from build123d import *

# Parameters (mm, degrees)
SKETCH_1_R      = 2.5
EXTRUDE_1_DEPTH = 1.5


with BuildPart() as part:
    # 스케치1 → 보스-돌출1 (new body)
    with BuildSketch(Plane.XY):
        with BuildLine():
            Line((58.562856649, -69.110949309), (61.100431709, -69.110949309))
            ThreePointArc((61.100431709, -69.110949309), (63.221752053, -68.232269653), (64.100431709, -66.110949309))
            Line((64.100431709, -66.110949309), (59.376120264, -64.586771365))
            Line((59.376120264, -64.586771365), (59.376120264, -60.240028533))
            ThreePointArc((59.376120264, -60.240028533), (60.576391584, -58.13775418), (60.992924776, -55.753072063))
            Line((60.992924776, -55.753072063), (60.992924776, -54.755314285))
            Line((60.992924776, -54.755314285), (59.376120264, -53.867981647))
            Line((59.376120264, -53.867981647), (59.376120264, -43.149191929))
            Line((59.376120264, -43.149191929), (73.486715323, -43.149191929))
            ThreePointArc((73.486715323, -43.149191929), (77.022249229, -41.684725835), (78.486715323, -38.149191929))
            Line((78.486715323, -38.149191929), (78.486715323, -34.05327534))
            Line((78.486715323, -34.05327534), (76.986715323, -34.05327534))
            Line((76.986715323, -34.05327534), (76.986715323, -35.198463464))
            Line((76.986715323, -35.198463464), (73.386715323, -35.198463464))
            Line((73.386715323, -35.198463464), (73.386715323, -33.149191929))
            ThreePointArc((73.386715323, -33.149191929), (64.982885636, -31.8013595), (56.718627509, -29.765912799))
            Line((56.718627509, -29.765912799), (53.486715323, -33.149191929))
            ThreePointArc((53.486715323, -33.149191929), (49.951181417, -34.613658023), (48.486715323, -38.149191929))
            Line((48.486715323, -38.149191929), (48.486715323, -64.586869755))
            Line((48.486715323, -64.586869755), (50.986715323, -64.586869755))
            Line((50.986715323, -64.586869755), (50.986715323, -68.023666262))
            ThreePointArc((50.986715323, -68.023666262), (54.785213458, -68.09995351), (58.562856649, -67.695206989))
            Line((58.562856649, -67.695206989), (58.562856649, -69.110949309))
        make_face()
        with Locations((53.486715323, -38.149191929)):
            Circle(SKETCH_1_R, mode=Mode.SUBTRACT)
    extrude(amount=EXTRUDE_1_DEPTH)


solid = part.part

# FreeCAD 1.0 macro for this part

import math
import FreeCAD as App
import Part
import Sketcher

V = App.Vector
Q = App.Units.Quantity

doc = App.newDocument("Part")
body = doc.addObject("PartDesign::Body", "Body")

sketch1 = doc.addObject("Sketcher::SketchObject", "Sketch")
body.addObject(sketch1)
sketch1.AttachmentSupport = (doc.XY_Plane, [""])
sketch1.MapMode = "FlatFace"
sketch1.addGeometry([
    Part.LineSegment(V(58.6, -69.1, 0), V(61.1, -69.1, 0)),
    Part.ArcOfCircle(Part.Circle(V(61.1, -66.1, 0), V(0, 0, 1), 3), math.radians(-90), math.radians(0)),
    Part.LineSegment(V(64.1, -66.1, 0), V(59.4, -64.6, 0)),
    Part.LineSegment(V(59.4, -64.6, 0), V(59.4, -60.2, 0)),
    Part.ArcOfCircle(Part.Circle(V(54, -55.8, 0), V(0, 0, 1), 7), math.radians(-40), math.radians(0)),
    Part.LineSegment(V(61, -55.8, 0), V(61, -54.8, 0)),
    Part.LineSegment(V(61, -54.8, 0), V(59.4, -53.9, 0)),
    Part.LineSegment(V(59.4, -53.9, 0), V(59.4, -43.1, 0)),
    Part.LineSegment(V(59.4, -43.1, 0), V(73.5, -43.1, 0)),
    Part.ArcOfCircle(Part.Circle(V(73.5, -38.1, 0), V(0, 0, 1), 5), math.radians(-90), math.radians(0)),
    Part.LineSegment(V(78.5, -38.1, 0), V(78.5, -34.1, 0)),
    Part.LineSegment(V(78.5, -34.1, 0), V(77, -34.1, 0)),
    Part.LineSegment(V(77, -34.1, 0), V(77, -35.2, 0)),
    Part.LineSegment(V(77, -35.2, 0), V(73.4, -35.2, 0)),
    Part.LineSegment(V(73.4, -35.2, 0), V(73.4, -33.1, 0)),
    Part.ArcOfCircle(Part.Circle(V(85.5, 69.4, 0), V(0, 0, 1), 103.2), math.radians(-106.2), math.radians(-96.75)),
    Part.LineSegment(V(56.7, -29.8, 0), V(53.5, -33.1, 0)),
    Part.ArcOfCircle(Part.Circle(V(53.5, -38.1, 0), V(0, 0, 1), 5), math.radians(90), math.radians(180)),
    Part.LineSegment(V(48.5, -38.1, 0), V(48.5, -64.6, 0)),
    Part.LineSegment(V(48.5, -64.6, 0), V(51, -64.6, 0)),
    Part.LineSegment(V(51, -64.6, 0), V(51, -68, 0)),
    Part.ArcOfCircle(Part.Circle(V(53.5, -38.1, 0), V(0, 0, 1), 30), math.radians(-94.78), math.radians(-80.25)),
    Part.LineSegment(V(58.6, -67.7, 0), V(58.6, -69.1, 0)),
    Part.Circle(V(53.5, -38.1, 0), V(0, 0, 1), 2.5),
], False)
sketch1.addConstraint([
    Sketcher.Constraint("Tangent", 0, 2, 1, 1),
    Sketcher.Constraint("Coincident", 1, 2, 2, 1),
    Sketcher.Constraint("Coincident", 2, 2, 3, 1),
    Sketcher.Constraint("Coincident", 3, 2, 4, 1),
    Sketcher.Constraint("Tangent", 4, 2, 5, 1),
    Sketcher.Constraint("Coincident", 5, 2, 6, 1),
    Sketcher.Constraint("Coincident", 6, 2, 7, 1),
    Sketcher.Constraint("Coincident", 7, 2, 8, 1),
    Sketcher.Constraint("Tangent", 8, 2, 9, 1),
    Sketcher.Constraint("Tangent", 9, 2, 10, 1),
    Sketcher.Constraint("Coincident", 10, 2, 11, 1),
    Sketcher.Constraint("Coincident", 11, 2, 12, 1),
    Sketcher.Constraint("Coincident", 12, 2, 13, 1),
    Sketcher.Constraint("Coincident", 13, 2, 14, 1),
    Sketcher.Constraint("Coincident", 14, 2, 15, 2),
    Sketcher.Constraint("Coincident", 15, 1, 16, 1),
    Sketcher.Constraint("Coincident", 16, 2, 17, 1),
    Sketcher.Constraint("Tangent", 17, 2, 18, 1),
    Sketcher.Constraint("Coincident", 18, 2, 19, 1),
    Sketcher.Constraint("Coincident", 19, 2, 20, 1),
    Sketcher.Constraint("Coincident", 20, 2, 21, 1),
    Sketcher.Constraint("Coincident", 21, 2, 22, 1),
    Sketcher.Constraint("Coincident", 22, 2, 0, 1),
    Sketcher.Constraint("Horizontal", 0),
    Sketcher.Constraint("Vertical", 3),
    Sketcher.Constraint("Vertical", 5),
    Sketcher.Constraint("Vertical", 7),
    Sketcher.Constraint("Horizontal", 8),
    Sketcher.Constraint("Vertical", 10),
    Sketcher.Constraint("Horizontal", 11),
    Sketcher.Constraint("Vertical", 12),
    Sketcher.Constraint("Horizontal", 13),
    Sketcher.Constraint("Vertical", 14),
    Sketcher.Constraint("Vertical", 18),
    Sketcher.Constraint("Horizontal", 19),
    Sketcher.Constraint("Vertical", 20),
    Sketcher.Constraint("Vertical", 22),
    Sketcher.Constraint("Coincident", 21, 3, 17, 3),
    Sketcher.Constraint("Coincident", 23, 3, 17, 3),
    Sketcher.Constraint("Equal", 9, 17),
    Sketcher.Constraint("Horizontal", 9, 3, 17, 3),
    Sketcher.Constraint("Horizontal", 14, 2, 16, 2),
    Sketcher.Constraint("Vertical", 3, 2, 6, 2),
    Sketcher.Constraint("Vertical", 23, 3, 16, 2),
    Sketcher.Constraint("Diameter", 23, Q("5 mm")),
    Sketcher.Constraint("Radius", 1, Q("3 mm")),
    Sketcher.Constraint("Radius", 9, Q("5 mm")),
    Sketcher.Constraint("DistanceX", 11, 2, 11, 1, Q("1.5 mm")),
    Sketcher.Constraint("DistanceX", 13, 2, 13, 1, Q("3.6 mm")),
    Sketcher.Constraint("DistanceX", 19, 1, 19, 2, Q("2.5 mm")),
    Sketcher.Constraint("DistanceX", 17, 3, 9, 3, Q("20 mm")),
    Sketcher.Constraint("DistanceY", 0, 2, 1, 2, Q("3 mm")),
    Sketcher.Constraint("Radius", 4, Q("7.034504 mm")),
    Sketcher.Constraint("Radius", 15, Q("103.245795 mm")),
    Sketcher.Constraint("Radius", 21, Q("29.978896 mm")),
    Sketcher.Constraint("DistanceY", 7, 1, 7, 2, Q("10.71879 mm")),
    Sketcher.Constraint("DistanceY", 12, 2, 12, 1, Q("1.145188 mm")),
    Sketcher.Constraint("DistanceY", 14, 1, 14, 2, Q("2.049272 mm")),
    Sketcher.Constraint("DistanceX", 4, 3, 2, 2, Q("5.417699 mm")),
    Sketcher.Constraint("DistanceY", 2, 2, 4, 3, Q("8.833699 mm")),
    Sketcher.Constraint("Distance", 16, Q("4.678871 mm")),
    Sketcher.Constraint("DistanceX", 0, 1, 0, 2, Q("2.537575 mm")),
    Sketcher.Constraint("DistanceX", 8, 1, 8, 2, Q("14.110595 mm")),
    Sketcher.Constraint("DistanceY", 5, 1, 5, 2, Q("0.997758 mm")),
    Sketcher.Constraint("DistanceY", 18, 2, 18, 1, Q("26.437678 mm")),
    Sketcher.Constraint("DistanceY", 22, 2, 22, 1, Q("1.415742 mm")),
    Sketcher.Constraint("DistanceX", -1, 1, 1, 3, Q("61.100432 mm")),
    Sketcher.Constraint("DistanceY", 1, 3, -1, 1, Q("66.110949 mm")),
    Sketcher.Constraint("DistanceX", -1, 1, 4, 3, Q("53.958421 mm")),
    Sketcher.Constraint("DistanceX", -1, 1, 15, 3, Q("85.520841 mm")),
    Sketcher.Constraint("DistanceY", 2, 2, -1, 1, Q("64.586771 mm")),
])
pad1 = doc.addObject("PartDesign::Pad", "Pad")
body.addObject(pad1)
pad1.Profile = sketch1
pad1.Length = 1.5

doc.recompute()
